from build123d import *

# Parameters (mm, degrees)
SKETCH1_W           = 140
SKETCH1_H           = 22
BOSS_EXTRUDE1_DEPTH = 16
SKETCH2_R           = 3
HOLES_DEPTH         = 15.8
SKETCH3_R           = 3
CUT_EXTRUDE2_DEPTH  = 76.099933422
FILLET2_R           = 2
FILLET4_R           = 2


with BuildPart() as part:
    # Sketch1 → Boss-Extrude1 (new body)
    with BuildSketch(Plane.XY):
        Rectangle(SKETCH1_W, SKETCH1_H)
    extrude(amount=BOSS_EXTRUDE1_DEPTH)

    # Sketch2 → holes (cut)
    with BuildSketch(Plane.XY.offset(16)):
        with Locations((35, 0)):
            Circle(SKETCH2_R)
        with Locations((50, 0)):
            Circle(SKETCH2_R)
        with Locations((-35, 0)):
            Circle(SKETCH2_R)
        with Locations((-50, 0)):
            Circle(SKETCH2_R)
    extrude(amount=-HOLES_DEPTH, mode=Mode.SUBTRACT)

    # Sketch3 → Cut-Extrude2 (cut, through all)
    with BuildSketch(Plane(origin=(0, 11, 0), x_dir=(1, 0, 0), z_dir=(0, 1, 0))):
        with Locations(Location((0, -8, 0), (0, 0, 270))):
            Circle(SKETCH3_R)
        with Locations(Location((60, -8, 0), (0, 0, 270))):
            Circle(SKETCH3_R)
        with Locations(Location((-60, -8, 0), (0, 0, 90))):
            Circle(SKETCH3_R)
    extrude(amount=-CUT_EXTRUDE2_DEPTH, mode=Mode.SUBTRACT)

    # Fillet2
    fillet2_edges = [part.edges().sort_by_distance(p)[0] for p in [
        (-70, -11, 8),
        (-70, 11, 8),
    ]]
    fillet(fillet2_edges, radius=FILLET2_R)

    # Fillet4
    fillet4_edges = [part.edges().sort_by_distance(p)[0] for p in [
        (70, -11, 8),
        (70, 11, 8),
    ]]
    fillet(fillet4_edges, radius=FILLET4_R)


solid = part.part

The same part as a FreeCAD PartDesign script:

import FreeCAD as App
import Part
import Sketcher
from FreeCAD import Vector


def edges_at(feature, points):
    """Names of the edges that pass closest to the given points."""
    edges = feature.Shape.Edges
    near = lambda p: min(range(len(edges)), key=lambda i: edges[i].distToShape(Part.Vertex(*p))[0])
    return sorted({f"Edge{near(p) + 1}" for p in points})

doc = App.newDocument("Part")
body = doc.addObject("PartDesign::Body", "Body")

# Sketch on XY plane
sketch1 = doc.addObject("Sketcher::SketchObject", "Sketch")
body.addObject(sketch1)
sketch1.AttachmentSupport = (doc.XY_Plane, [""])
sketch1.MapMode = "FlatFace"
sketch1.addGeometry([
    Part.LineSegment(Vector(-70, 11, 0), Vector(-70, -11, 0)),
    Part.LineSegment(Vector(-70, -11, 0), Vector(70, -11, 0)),
    Part.LineSegment(Vector(70, -11, 0), Vector(70, 11, 0)),
    Part.LineSegment(Vector(70, 11, 0), Vector(-70, 11, 0)),
], False)
sketch1.addConstraint([
    Sketcher.Constraint("Coincident", 0, 2, 1, 1),
    Sketcher.Constraint("Coincident", 1, 2, 2, 1),
    Sketcher.Constraint("Coincident", 2, 2, 3, 1),
    Sketcher.Constraint("Coincident", 3, 2, 0, 1),
    Sketcher.Constraint("Vertical", 0),
    Sketcher.Constraint("Horizontal", 1),
    Sketcher.Constraint("Vertical", 2),
    Sketcher.Constraint("Horizontal", 3),
    Sketcher.Constraint("Symmetric", 0, 2, 2, 2, -1, 1),
    Sketcher.Constraint("DistanceX", 1, 1, 1, 2, 140.0),
    Sketcher.Constraint("DistanceY", 0, 2, 0, 1, 22.0),
])
pad1 = doc.addObject("PartDesign::Pad", "Pad")
body.addObject(pad1)
pad1.Profile = sketch1
pad1.Length = 16

# Sketch on XY plane
sketch2 = doc.addObject("Sketcher::SketchObject", "Sketch001")
body.addObject(sketch2)
sketch2.AttachmentSupport = (doc.XY_Plane, [""])
sketch2.MapMode = "FlatFace"
sketch2.AttachmentOffset = App.Placement(Vector(0, 0, 16), App.Rotation())
sketch2.addGeometry([
    Part.Circle(Vector(35, 0, 0), Vector(0, 0, 1), 3),
    Part.Circle(Vector(50, 0, 0), Vector(0, 0, 1), 3),
    Part.Circle(Vector(-35, 0, 0), Vector(0, 0, 1), 3),
    Part.Circle(Vector(-50, 0, 0), Vector(0, 0, 1), 3),
], False)
sketch2.addConstraint([
    Sketcher.Constraint("Equal", 0, 1),
    Sketcher.Constraint("Equal", 1, 2),
    Sketcher.Constraint("Equal", 2, 3),
    Sketcher.Constraint("Symmetric", 0, 3, 2, 3, -1, 1),
    Sketcher.Constraint("Symmetric", 1, 3, 3, 3, -1, 1),
    Sketcher.Constraint("PointOnObject", 0, 3, -1),
    Sketcher.Constraint("PointOnObject", 1, 3, -1),
    Sketcher.Constraint("Diameter", 0, 6.0),
    Sketcher.Constraint("DistanceX", -1, 1, 0, 3, 35.0),
    Sketcher.Constraint("DistanceX", -1, 1, 1, 3, 50.0),
])
pocket1 = doc.addObject("PartDesign::Pocket", "Pocket")
body.addObject(pocket1)
pocket1.Profile = sketch2
pocket1.Length = 15.8

# Sketch on XZ plane
sketch3 = doc.addObject("Sketcher::SketchObject", "Sketch002")
body.addObject(sketch3)
sketch3.AttachmentSupport = (doc.XZ_Plane, [""])
sketch3.MapMode = "FlatFace"
sketch3.AttachmentOffset = App.Placement(Vector(0, 0, -11), App.Rotation())
sketch3.addGeometry([
    Part.Circle(Vector(0, 8, 0), Vector(0, 0, 1), 3),
    Part.Circle(Vector(60, 8, 0), Vector(0, 0, 1), 3),
    Part.Circle(Vector(-60, 8, 0), Vector(0, 0, 1), 3),
], False)
sketch3.addConstraint([
    Sketcher.Constraint("Equal", 0, 1),
    Sketcher.Constraint("Equal", 1, 2),
    Sketcher.Constraint("Symmetric", 1, 3, 2, 3, -2),
    Sketcher.Constraint("PointOnObject", 0, 3, -2),
    Sketcher.Constraint("Horizontal", 0, 3, 1, 3),
    Sketcher.Constraint("Diameter", 0, 6.0),
    Sketcher.Constraint("DistanceY", -1, 1, 0, 3, 8.0),
    Sketcher.Constraint("DistanceX", -1, 1, 1, 3, 60.0),
])
pocket2 = doc.addObject("PartDesign::Pocket", "Pocket001")
body.addObject(pocket2)
pocket2.Profile = sketch3
pocket2.Type = "ThroughAll"
pocket2.Reversed = True
doc.recompute()

fillet = doc.addObject("PartDesign::Fillet", "Fillet")
body.addObject(fillet)
fillet.Base = (pocket2, edges_at(pocket2, [(-70, -11, 8), (-70, 11, 8)]))
fillet.Radius = 2
doc.recompute()

fillet2 = doc.addObject("PartDesign::Fillet", "Fillet001")
body.addObject(fillet2)
fillet2.Base = (fillet, edges_at(fillet, [(70, -11, 8), (70, 11, 8)]))
fillet2.Radius = 2

doc.recompute()
